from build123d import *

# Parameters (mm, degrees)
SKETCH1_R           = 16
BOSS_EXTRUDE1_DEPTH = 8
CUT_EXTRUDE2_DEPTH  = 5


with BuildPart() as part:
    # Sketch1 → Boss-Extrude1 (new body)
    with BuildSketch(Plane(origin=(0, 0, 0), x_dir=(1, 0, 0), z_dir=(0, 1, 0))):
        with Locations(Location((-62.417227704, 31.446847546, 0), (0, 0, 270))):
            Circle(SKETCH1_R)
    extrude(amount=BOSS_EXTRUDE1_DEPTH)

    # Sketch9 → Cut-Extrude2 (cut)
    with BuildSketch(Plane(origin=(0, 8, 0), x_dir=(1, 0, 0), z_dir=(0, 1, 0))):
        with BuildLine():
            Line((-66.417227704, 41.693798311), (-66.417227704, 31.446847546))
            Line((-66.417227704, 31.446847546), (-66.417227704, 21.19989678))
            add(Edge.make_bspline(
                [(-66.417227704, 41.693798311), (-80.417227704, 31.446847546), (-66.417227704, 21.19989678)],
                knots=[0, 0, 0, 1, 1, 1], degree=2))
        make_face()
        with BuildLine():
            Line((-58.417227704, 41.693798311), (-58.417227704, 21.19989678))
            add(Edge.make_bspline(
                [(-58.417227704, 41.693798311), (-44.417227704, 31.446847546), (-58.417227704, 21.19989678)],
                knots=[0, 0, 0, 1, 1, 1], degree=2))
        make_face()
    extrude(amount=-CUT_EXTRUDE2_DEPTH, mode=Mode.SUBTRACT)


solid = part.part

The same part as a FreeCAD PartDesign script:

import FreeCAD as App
import Part
import Sketcher
from FreeCAD import Vector

doc = App.newDocument("Part")
params = doc.addObject("Spreadsheet::Sheet", "Params")
for row, (alias, value) in enumerate([
    ("sketch1_diameter", "32 mm"),
    ("pad1_length", "8 mm"),
    ("pocket1_length", "5 mm"),
], start=1):
    params.set(f"A{row}", alias)
    params.set(f"B{row}", "=" + value)
    params.setAlias(f"B{row}", alias)

body = doc.addObject("PartDesign::Body", "Body")

sketch1 = body.newObject("Sketcher::SketchObject", "Sketch")
sketch1.AttachmentSupport = (doc.getObject("XZ_Plane"), [""])
sketch1.MapMode = "FlatFace"
sketch1.addGeometry(Part.Circle(Vector(-62, -31, 0), Vector(0, 0, 1), 16), False)
sketch1.addConstraint([
    Sketcher.Constraint("Diameter", 0, 32.0),
    Sketcher.Constraint("DistanceX", 0, 3, -1, 1, 62.417228),
    Sketcher.Constraint("DistanceY", 0, 3, -1, 1, 31.446848),
])
sketch1.setExpression("Constraints[0]", "Params.sketch1_diameter")
pad1 = body.newObject("PartDesign::Pad", "Pad")
pad1.Profile = sketch1
pad1.setExpression("Length", "Params.pad1_length")
pad1.Reversed = True

sketch2 = body.newObject("Sketcher::SketchObject", "Sketch001")
sketch2.AttachmentSupport = (doc.getObject("XZ_Plane"), [""])
sketch2.MapMode = "FlatFace"
sketch2.AttachmentOffset = App.Placement(Vector(0, 0, -8), App.Rotation())
sketch2.addGeometry([
    Part.LineSegment(Vector(-66.417228, -21.199897, 0), Vector(-66.417228, -41.693798, 0)),
    Part.BSplineCurve([Vector(-66.417228, -41.693798, 0), Vector(-80.417228, -31.446848, 0), Vector(-66.417228, -21.199897, 0)], [3, 3], [0, 1], False, 2, [1, 1, 1], False),
    Part.LineSegment(Vector(-58.417228, -41.693798, 0), Vector(-58.417228, -21.199897, 0)),
    Part.BSplineCurve([Vector(-58.417228, -41.693798, 0), Vector(-44.417228, -31.446848, 0), Vector(-58.417228, -21.199897, 0)], [3, 3], [0, 1], False, 2, [1, 1, 1], False),
], False)
sketch2.addConstraint([
    Sketcher.Constraint("Block", 1),
    Sketcher.Constraint("Block", 3),
    Sketcher.Constraint("Coincident", 0, 1, 1, 2),
    Sketcher.Constraint("Coincident", 1, 1, 0, 2),
    Sketcher.Constraint("Coincident", 2, 1, 3, 1),
    Sketcher.Constraint("Coincident", 3, 2, 2, 2),
])
pocket1 = body.newObject("PartDesign::Pocket", "Pocket")
pocket1.Profile = sketch2
pocket1.setExpression("Length", "Params.pocket1_length")
pocket1.Reversed = True

doc.recompute()
